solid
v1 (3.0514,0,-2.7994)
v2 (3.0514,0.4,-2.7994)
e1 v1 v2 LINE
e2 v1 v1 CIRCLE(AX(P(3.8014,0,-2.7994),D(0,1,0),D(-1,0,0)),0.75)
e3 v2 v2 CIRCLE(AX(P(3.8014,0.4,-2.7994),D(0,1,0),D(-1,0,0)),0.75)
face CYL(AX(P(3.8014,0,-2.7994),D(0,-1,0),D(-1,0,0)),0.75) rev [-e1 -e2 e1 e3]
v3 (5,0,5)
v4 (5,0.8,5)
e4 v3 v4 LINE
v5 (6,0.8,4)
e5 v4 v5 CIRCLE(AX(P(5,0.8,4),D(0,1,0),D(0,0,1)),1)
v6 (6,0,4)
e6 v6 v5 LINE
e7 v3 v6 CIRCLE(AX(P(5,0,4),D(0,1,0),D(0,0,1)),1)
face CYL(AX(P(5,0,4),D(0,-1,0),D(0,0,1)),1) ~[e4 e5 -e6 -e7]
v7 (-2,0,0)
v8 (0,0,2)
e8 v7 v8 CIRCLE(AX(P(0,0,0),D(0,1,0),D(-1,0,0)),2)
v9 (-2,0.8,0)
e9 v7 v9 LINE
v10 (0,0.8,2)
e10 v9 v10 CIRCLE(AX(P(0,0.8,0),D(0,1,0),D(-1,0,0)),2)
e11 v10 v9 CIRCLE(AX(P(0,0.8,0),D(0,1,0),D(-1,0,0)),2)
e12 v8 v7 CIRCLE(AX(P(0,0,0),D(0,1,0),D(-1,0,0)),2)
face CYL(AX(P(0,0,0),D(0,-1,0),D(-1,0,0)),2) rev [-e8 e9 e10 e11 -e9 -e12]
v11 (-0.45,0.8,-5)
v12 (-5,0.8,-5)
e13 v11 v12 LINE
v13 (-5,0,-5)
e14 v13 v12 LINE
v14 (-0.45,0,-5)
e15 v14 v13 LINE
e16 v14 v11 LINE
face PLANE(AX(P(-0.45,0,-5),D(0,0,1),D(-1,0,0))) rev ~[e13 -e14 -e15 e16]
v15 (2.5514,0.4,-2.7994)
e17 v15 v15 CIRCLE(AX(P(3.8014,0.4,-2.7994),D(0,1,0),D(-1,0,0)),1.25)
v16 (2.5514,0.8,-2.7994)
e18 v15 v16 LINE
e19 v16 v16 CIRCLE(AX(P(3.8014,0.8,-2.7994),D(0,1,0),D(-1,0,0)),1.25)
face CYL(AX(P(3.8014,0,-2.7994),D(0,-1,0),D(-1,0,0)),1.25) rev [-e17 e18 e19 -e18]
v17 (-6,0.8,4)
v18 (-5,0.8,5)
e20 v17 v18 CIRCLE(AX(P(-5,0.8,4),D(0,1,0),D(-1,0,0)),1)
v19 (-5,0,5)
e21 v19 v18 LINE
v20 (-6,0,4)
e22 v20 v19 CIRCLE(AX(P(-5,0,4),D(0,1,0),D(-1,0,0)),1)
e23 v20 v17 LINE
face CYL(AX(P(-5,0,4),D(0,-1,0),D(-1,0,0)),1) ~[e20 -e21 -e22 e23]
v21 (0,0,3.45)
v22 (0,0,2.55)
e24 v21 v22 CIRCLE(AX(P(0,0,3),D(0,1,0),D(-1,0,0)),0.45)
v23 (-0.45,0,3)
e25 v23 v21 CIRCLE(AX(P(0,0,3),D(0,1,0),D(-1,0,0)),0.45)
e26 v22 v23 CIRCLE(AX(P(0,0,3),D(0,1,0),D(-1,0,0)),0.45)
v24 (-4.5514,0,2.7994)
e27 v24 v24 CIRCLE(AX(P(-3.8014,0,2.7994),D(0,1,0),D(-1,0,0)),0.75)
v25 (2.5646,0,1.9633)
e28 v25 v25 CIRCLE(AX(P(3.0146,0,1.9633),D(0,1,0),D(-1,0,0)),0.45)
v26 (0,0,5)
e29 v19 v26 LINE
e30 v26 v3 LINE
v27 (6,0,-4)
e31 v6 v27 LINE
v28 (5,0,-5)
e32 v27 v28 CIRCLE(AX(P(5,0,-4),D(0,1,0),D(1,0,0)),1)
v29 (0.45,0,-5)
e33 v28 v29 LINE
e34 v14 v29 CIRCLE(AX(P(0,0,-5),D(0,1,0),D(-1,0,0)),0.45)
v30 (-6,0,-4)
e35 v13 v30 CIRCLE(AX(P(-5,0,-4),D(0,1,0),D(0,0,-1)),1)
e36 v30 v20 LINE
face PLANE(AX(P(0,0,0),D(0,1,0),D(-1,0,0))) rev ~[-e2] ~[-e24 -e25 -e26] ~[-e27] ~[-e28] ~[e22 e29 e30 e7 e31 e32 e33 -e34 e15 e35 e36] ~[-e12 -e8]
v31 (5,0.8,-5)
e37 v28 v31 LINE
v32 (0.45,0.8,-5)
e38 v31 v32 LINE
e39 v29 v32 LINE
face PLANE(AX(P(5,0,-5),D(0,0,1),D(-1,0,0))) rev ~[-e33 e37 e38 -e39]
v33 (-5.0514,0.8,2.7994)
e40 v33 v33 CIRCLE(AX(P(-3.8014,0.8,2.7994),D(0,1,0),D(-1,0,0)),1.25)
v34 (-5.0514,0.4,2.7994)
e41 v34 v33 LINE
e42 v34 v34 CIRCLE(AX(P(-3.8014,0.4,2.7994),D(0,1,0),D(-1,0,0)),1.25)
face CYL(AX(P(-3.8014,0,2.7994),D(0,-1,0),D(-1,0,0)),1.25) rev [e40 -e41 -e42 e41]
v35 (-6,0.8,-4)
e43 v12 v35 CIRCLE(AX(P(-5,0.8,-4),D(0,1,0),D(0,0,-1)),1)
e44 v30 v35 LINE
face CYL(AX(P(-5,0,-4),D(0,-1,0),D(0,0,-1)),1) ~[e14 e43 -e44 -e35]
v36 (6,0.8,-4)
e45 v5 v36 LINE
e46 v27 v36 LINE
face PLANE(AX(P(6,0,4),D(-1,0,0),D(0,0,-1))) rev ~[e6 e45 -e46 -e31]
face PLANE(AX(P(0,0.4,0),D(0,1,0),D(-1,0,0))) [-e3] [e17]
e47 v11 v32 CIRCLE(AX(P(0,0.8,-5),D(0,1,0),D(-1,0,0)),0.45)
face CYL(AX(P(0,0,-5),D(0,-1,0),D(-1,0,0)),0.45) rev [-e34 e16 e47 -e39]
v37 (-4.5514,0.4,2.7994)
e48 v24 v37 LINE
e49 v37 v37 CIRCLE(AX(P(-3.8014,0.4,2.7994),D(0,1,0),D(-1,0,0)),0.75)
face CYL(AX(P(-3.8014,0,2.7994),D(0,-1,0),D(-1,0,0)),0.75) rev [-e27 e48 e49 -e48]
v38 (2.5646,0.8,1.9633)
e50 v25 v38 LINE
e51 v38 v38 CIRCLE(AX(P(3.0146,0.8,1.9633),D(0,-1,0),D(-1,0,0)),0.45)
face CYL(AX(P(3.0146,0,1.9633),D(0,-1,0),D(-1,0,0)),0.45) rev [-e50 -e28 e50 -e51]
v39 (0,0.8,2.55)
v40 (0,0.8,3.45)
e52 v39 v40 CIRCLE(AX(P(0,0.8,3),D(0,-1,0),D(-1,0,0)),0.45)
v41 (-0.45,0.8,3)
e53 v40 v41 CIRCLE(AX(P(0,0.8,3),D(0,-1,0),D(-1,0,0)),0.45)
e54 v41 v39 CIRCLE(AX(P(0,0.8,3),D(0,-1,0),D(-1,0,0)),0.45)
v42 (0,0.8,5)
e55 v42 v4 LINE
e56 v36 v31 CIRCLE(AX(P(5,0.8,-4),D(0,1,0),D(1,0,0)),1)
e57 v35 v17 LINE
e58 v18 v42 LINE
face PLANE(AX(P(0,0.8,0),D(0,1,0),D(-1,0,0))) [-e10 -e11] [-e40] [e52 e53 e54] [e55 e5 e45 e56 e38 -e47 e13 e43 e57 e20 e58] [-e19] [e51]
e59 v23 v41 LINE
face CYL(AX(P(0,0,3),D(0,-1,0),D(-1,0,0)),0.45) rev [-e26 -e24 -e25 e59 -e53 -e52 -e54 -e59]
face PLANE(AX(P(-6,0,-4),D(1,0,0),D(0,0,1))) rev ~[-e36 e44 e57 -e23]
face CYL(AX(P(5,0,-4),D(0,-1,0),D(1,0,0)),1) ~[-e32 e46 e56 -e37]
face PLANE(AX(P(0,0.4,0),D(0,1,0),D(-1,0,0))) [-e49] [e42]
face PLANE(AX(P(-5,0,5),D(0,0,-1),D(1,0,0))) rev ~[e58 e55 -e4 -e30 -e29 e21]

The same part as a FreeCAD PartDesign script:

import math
import FreeCAD as App
import Part
import Sketcher
from FreeCAD import Vector

doc = App.newDocument("Part")
body = doc.addObject("PartDesign::Body", "Body")

# Sketch on XZ plane
sketch1 = body.newObject("Sketcher::SketchObject", "Sketch")
sketch1.AttachmentSupport = (doc.getObject("XZ_Plane"), [""])
sketch1.MapMode = "FlatFace"
sketch1.addGeometry(Part.LineSegment(Vector(0, 5, 0), Vector(5, 5, 0)), False)
sketch1.addGeometry(Part.ArcOfCircle(Part.Circle(Vector(5, 4, 0), Vector(0, 0, 1), 1), math.radians(0), math.radians(90)), False)
sketch1.addGeometry(Part.LineSegment(Vector(6, 4, 0), Vector(6, -4, 0)), False)
sketch1.addGeometry(Part.ArcOfCircle(Part.Circle(Vector(5, -4, 0), Vector(0, 0, 1), 1), math.radians(-90), math.radians(0)), False)
sketch1.addGeometry(Part.LineSegment(Vector(5, -5, 0), Vector(0.45, -5, 0)), False)
sketch1.addGeometry(Part.ArcOfCircle(Part.Circle(Vector(0, -5, 0), Vector(0, 0, 1), 0.45), math.radians(0), math.radians(180)), False)
sketch1.addGeometry(Part.LineSegment(Vector(-0.45, -5, 0), Vector(-5, -5, 0)), False)
sketch1.addGeometry(Part.ArcOfCircle(Part.Circle(Vector(-5, -4, 0), Vector(0, 0, 1), 1), math.radians(180), math.radians(270)), False)
sketch1.addGeometry(Part.LineSegment(Vector(-6, -4, 0), Vector(-6, 4, 0)), False)
sketch1.addGeometry(Part.ArcOfCircle(Part.Circle(Vector(-5, 4, 0), Vector(0, 0, 1), 1), math.radians(90), math.radians(180)), False)
sketch1.addGeometry(Part.LineSegment(Vector(-5, 5, 0), Vector(0, 5, 0)), False)
sketch1.addGeometry(Part.Circle(Vector(3.8014, -2.7994, 0), Vector(0, 0, 1), 1.25), False)
sketch1.addGeometry(Part.Circle(Vector(0, 0, 0), Vector(0, 0, 1), 2), False)
sketch1.addGeometry(Part.Circle(Vector(-3.8014, 2.7994, 0), Vector(0, 0, 1), 1.25), False)
sketch1.addConstraint(Sketcher.Constraint("Tangent", 0, 2, 1, 2))
sketch1.addConstraint(Sketcher.Constraint("Tangent", 1, 1, 2, 1))
sketch1.addConstraint(Sketcher.Constraint("Tangent", 2, 2, 3, 2))
sketch1.addConstraint(Sketcher.Constraint("Tangent", 3, 1, 4, 1))
sketch1.addConstraint(Sketcher.Constraint("Coincident", 4, 2, 5, 1))
sketch1.addConstraint(Sketcher.Constraint("Coincident", 5, 2, 6, 1))
sketch1.addConstraint(Sketcher.Constraint("Tangent", 6, 2, 7, 2))
sketch1.addConstraint(Sketcher.Constraint("Tangent", 7, 1, 8, 1))
sketch1.addConstraint(Sketcher.Constraint("Tangent", 8, 2, 9, 2))
sketch1.addConstraint(Sketcher.Constraint("Tangent", 9, 1, 10, 1))
sketch1.addConstraint(Sketcher.Constraint("Coincident", 10, 2, 0, 1))
sketch1.addConstraint(Sketcher.Constraint("Horizontal", 0))
sketch1.addConstraint(Sketcher.Constraint("Vertical", 2))
sketch1.addConstraint(Sketcher.Constraint("Horizontal", 4))
sketch1.addConstraint(Sketcher.Constraint("Horizontal", 6))
sketch1.addConstraint(Sketcher.Constraint("Vertical", 8))
sketch1.addConstraint(Sketcher.Constraint("Horizontal", 10))
sketch1.addConstraint(Sketcher.Constraint("Coincident", 12, 3, -1, 1))
sketch1.addConstraint(Sketcher.Constraint("Equal", 1, 3))
sketch1.addConstraint(Sketcher.Constraint("Equal", 3, 7))
sketch1.addConstraint(Sketcher.Constraint("Equal", 7, 9))
sketch1.addConstraint(Sketcher.Constraint("Equal", 11, 13))
sketch1.addConstraint(Sketcher.Constraint("Symmetric", 1, 3, 7, 3, -1, 1))
sketch1.addConstraint(Sketcher.Constraint("Symmetric", 11, 3, 13, 3, -1, 1))
sketch1.addConstraint(Sketcher.Constraint("Symmetric", 4, 2, 5, 2, -2))
sketch1.addConstraint(Sketcher.Constraint("PointOnObject", 10, 2, -2))
sketch1.addConstraint(Sketcher.Constraint("Horizontal", 5, 3, 3, 1))
sketch1.addConstraint(Sketcher.Constraint("Diameter", 12, 4.0))
sketch1.addConstraint(Sketcher.Constraint("Radius", 1, 1.0))
sketch1.addConstraint(Sketcher.Constraint("Radius", 5, 0.45))
sketch1.addConstraint(Sketcher.Constraint("DistanceY", -1, 1, 1, 3, 4.0))
sketch1.addConstraint(Sketcher.Constraint("Diameter", 11, 2.5))
sketch1.addConstraint(Sketcher.Constraint("DistanceX", 0, 1, 0, 2, 5.0))
sketch1.addConstraint(Sketcher.Constraint("DistanceX", -1, 1, 11, 3, 3.8014))
sketch1.addConstraint(Sketcher.Constraint("DistanceY", 11, 3, -1, 1, 2.7994))
pad1 = body.newObject("PartDesign::Pad", "Pad")
pad1.Profile = sketch1
pad1.Length = 0.8
pad1.Reversed = True

# Sketch on XZ plane
sketch2 = body.newObject("Sketcher::SketchObject", "Sketch001")
sketch2.AttachmentSupport = (doc.getObject("XZ_Plane"), [""])
sketch2.MapMode = "FlatFace"
sketch2.addGeometry(Part.Circle(Vector(-3.8014, 2.7994, 0), Vector(0, 0, 1), 1.25), False)
sketch2.addGeometry(Part.Circle(Vector(-3.8014, 2.7994, 0), Vector(0, 0, 1), 0.75), False)
sketch2.addGeometry(Part.Circle(Vector(3.8014, -2.7994, 0), Vector(0, 0, 1), 1.25), False)
sketch2.addGeometry(Part.Circle(Vector(3.8014, -2.7994, 0), Vector(0, 0, 1), 0.75), False)
sketch2.addConstraint(Sketcher.Constraint("Coincident", 1, 3, 0, 3))
sketch2.addConstraint(Sketcher.Constraint("Coincident", 3, 3, 2, 3))
sketch2.addConstraint(Sketcher.Constraint("Equal", 0, 2))
sketch2.addConstraint(Sketcher.Constraint("Equal", 1, 3))
sketch2.addConstraint(Sketcher.Constraint("Symmetric", 0, 3, 2, 3, -1, 1))
sketch2.addConstraint(Sketcher.Constraint("Diameter", 1, 1.5))
sketch2.addConstraint(Sketcher.Constraint("Diameter", 0, 2.5))
sketch2.addConstraint(Sketcher.Constraint("DistanceX", 0, 3, -1, 1, 3.8014))
sketch2.addConstraint(Sketcher.Constraint("DistanceY", -1, 1, 0, 3, 2.7994))
pad2 = body.newObject("PartDesign::Pad", "Pad001")
pad2.Profile = sketch2
pad2.Length = 0.4
pad2.Reversed = True

# Sketch on XZ plane
sketch3 = body.newObject("Sketcher::SketchObject", "Sketch002")
sketch3.AttachmentSupport = (doc.getObject("XZ_Plane"), [""])
sketch3.MapMode = "FlatFace"
sketch3.addGeometry(Part.Circle(Vector(3.0146, 1.9633, 0), Vector(0, 0, 1), 0.45), False)
sketch3.addConstraint(Sketcher.Constraint("Diameter", 0, 0.9))
sketch3.addConstraint(Sketcher.Constraint("DistanceX", -1, 1, 0, 3, 3.0146))
sketch3.addConstraint(Sketcher.Constraint("DistanceY", -1, 1, 0, 3, 1.9633))
pocket1 = body.newObject("PartDesign::Pocket", "Pocket")
pocket1.Profile = sketch3
pocket1.Length = 10

# Sketch on XZ plane
sketch4 = body.newObject("Sketcher::SketchObject", "Sketch003")
sketch4.AttachmentSupport = (doc.getObject("XZ_Plane"), [""])
sketch4.MapMode = "FlatFace"
sketch4.addGeometry(Part.Circle(Vector(0, 3, 0), Vector(0, 0, 1), 0.45), False)
sketch4.addConstraint(Sketcher.Constraint("PointOnObject", 0, 3, -2))
sketch4.addConstraint(Sketcher.Constraint("Diameter", 0, 0.9))
sketch4.addConstraint(Sketcher.Constraint("DistanceY", -1, 1, 0, 3, 3.0))
pocket2 = body.newObject("PartDesign::Pocket", "Pocket001")
pocket2.Profile = sketch4
pocket2.Length = 10

doc.recompute()
